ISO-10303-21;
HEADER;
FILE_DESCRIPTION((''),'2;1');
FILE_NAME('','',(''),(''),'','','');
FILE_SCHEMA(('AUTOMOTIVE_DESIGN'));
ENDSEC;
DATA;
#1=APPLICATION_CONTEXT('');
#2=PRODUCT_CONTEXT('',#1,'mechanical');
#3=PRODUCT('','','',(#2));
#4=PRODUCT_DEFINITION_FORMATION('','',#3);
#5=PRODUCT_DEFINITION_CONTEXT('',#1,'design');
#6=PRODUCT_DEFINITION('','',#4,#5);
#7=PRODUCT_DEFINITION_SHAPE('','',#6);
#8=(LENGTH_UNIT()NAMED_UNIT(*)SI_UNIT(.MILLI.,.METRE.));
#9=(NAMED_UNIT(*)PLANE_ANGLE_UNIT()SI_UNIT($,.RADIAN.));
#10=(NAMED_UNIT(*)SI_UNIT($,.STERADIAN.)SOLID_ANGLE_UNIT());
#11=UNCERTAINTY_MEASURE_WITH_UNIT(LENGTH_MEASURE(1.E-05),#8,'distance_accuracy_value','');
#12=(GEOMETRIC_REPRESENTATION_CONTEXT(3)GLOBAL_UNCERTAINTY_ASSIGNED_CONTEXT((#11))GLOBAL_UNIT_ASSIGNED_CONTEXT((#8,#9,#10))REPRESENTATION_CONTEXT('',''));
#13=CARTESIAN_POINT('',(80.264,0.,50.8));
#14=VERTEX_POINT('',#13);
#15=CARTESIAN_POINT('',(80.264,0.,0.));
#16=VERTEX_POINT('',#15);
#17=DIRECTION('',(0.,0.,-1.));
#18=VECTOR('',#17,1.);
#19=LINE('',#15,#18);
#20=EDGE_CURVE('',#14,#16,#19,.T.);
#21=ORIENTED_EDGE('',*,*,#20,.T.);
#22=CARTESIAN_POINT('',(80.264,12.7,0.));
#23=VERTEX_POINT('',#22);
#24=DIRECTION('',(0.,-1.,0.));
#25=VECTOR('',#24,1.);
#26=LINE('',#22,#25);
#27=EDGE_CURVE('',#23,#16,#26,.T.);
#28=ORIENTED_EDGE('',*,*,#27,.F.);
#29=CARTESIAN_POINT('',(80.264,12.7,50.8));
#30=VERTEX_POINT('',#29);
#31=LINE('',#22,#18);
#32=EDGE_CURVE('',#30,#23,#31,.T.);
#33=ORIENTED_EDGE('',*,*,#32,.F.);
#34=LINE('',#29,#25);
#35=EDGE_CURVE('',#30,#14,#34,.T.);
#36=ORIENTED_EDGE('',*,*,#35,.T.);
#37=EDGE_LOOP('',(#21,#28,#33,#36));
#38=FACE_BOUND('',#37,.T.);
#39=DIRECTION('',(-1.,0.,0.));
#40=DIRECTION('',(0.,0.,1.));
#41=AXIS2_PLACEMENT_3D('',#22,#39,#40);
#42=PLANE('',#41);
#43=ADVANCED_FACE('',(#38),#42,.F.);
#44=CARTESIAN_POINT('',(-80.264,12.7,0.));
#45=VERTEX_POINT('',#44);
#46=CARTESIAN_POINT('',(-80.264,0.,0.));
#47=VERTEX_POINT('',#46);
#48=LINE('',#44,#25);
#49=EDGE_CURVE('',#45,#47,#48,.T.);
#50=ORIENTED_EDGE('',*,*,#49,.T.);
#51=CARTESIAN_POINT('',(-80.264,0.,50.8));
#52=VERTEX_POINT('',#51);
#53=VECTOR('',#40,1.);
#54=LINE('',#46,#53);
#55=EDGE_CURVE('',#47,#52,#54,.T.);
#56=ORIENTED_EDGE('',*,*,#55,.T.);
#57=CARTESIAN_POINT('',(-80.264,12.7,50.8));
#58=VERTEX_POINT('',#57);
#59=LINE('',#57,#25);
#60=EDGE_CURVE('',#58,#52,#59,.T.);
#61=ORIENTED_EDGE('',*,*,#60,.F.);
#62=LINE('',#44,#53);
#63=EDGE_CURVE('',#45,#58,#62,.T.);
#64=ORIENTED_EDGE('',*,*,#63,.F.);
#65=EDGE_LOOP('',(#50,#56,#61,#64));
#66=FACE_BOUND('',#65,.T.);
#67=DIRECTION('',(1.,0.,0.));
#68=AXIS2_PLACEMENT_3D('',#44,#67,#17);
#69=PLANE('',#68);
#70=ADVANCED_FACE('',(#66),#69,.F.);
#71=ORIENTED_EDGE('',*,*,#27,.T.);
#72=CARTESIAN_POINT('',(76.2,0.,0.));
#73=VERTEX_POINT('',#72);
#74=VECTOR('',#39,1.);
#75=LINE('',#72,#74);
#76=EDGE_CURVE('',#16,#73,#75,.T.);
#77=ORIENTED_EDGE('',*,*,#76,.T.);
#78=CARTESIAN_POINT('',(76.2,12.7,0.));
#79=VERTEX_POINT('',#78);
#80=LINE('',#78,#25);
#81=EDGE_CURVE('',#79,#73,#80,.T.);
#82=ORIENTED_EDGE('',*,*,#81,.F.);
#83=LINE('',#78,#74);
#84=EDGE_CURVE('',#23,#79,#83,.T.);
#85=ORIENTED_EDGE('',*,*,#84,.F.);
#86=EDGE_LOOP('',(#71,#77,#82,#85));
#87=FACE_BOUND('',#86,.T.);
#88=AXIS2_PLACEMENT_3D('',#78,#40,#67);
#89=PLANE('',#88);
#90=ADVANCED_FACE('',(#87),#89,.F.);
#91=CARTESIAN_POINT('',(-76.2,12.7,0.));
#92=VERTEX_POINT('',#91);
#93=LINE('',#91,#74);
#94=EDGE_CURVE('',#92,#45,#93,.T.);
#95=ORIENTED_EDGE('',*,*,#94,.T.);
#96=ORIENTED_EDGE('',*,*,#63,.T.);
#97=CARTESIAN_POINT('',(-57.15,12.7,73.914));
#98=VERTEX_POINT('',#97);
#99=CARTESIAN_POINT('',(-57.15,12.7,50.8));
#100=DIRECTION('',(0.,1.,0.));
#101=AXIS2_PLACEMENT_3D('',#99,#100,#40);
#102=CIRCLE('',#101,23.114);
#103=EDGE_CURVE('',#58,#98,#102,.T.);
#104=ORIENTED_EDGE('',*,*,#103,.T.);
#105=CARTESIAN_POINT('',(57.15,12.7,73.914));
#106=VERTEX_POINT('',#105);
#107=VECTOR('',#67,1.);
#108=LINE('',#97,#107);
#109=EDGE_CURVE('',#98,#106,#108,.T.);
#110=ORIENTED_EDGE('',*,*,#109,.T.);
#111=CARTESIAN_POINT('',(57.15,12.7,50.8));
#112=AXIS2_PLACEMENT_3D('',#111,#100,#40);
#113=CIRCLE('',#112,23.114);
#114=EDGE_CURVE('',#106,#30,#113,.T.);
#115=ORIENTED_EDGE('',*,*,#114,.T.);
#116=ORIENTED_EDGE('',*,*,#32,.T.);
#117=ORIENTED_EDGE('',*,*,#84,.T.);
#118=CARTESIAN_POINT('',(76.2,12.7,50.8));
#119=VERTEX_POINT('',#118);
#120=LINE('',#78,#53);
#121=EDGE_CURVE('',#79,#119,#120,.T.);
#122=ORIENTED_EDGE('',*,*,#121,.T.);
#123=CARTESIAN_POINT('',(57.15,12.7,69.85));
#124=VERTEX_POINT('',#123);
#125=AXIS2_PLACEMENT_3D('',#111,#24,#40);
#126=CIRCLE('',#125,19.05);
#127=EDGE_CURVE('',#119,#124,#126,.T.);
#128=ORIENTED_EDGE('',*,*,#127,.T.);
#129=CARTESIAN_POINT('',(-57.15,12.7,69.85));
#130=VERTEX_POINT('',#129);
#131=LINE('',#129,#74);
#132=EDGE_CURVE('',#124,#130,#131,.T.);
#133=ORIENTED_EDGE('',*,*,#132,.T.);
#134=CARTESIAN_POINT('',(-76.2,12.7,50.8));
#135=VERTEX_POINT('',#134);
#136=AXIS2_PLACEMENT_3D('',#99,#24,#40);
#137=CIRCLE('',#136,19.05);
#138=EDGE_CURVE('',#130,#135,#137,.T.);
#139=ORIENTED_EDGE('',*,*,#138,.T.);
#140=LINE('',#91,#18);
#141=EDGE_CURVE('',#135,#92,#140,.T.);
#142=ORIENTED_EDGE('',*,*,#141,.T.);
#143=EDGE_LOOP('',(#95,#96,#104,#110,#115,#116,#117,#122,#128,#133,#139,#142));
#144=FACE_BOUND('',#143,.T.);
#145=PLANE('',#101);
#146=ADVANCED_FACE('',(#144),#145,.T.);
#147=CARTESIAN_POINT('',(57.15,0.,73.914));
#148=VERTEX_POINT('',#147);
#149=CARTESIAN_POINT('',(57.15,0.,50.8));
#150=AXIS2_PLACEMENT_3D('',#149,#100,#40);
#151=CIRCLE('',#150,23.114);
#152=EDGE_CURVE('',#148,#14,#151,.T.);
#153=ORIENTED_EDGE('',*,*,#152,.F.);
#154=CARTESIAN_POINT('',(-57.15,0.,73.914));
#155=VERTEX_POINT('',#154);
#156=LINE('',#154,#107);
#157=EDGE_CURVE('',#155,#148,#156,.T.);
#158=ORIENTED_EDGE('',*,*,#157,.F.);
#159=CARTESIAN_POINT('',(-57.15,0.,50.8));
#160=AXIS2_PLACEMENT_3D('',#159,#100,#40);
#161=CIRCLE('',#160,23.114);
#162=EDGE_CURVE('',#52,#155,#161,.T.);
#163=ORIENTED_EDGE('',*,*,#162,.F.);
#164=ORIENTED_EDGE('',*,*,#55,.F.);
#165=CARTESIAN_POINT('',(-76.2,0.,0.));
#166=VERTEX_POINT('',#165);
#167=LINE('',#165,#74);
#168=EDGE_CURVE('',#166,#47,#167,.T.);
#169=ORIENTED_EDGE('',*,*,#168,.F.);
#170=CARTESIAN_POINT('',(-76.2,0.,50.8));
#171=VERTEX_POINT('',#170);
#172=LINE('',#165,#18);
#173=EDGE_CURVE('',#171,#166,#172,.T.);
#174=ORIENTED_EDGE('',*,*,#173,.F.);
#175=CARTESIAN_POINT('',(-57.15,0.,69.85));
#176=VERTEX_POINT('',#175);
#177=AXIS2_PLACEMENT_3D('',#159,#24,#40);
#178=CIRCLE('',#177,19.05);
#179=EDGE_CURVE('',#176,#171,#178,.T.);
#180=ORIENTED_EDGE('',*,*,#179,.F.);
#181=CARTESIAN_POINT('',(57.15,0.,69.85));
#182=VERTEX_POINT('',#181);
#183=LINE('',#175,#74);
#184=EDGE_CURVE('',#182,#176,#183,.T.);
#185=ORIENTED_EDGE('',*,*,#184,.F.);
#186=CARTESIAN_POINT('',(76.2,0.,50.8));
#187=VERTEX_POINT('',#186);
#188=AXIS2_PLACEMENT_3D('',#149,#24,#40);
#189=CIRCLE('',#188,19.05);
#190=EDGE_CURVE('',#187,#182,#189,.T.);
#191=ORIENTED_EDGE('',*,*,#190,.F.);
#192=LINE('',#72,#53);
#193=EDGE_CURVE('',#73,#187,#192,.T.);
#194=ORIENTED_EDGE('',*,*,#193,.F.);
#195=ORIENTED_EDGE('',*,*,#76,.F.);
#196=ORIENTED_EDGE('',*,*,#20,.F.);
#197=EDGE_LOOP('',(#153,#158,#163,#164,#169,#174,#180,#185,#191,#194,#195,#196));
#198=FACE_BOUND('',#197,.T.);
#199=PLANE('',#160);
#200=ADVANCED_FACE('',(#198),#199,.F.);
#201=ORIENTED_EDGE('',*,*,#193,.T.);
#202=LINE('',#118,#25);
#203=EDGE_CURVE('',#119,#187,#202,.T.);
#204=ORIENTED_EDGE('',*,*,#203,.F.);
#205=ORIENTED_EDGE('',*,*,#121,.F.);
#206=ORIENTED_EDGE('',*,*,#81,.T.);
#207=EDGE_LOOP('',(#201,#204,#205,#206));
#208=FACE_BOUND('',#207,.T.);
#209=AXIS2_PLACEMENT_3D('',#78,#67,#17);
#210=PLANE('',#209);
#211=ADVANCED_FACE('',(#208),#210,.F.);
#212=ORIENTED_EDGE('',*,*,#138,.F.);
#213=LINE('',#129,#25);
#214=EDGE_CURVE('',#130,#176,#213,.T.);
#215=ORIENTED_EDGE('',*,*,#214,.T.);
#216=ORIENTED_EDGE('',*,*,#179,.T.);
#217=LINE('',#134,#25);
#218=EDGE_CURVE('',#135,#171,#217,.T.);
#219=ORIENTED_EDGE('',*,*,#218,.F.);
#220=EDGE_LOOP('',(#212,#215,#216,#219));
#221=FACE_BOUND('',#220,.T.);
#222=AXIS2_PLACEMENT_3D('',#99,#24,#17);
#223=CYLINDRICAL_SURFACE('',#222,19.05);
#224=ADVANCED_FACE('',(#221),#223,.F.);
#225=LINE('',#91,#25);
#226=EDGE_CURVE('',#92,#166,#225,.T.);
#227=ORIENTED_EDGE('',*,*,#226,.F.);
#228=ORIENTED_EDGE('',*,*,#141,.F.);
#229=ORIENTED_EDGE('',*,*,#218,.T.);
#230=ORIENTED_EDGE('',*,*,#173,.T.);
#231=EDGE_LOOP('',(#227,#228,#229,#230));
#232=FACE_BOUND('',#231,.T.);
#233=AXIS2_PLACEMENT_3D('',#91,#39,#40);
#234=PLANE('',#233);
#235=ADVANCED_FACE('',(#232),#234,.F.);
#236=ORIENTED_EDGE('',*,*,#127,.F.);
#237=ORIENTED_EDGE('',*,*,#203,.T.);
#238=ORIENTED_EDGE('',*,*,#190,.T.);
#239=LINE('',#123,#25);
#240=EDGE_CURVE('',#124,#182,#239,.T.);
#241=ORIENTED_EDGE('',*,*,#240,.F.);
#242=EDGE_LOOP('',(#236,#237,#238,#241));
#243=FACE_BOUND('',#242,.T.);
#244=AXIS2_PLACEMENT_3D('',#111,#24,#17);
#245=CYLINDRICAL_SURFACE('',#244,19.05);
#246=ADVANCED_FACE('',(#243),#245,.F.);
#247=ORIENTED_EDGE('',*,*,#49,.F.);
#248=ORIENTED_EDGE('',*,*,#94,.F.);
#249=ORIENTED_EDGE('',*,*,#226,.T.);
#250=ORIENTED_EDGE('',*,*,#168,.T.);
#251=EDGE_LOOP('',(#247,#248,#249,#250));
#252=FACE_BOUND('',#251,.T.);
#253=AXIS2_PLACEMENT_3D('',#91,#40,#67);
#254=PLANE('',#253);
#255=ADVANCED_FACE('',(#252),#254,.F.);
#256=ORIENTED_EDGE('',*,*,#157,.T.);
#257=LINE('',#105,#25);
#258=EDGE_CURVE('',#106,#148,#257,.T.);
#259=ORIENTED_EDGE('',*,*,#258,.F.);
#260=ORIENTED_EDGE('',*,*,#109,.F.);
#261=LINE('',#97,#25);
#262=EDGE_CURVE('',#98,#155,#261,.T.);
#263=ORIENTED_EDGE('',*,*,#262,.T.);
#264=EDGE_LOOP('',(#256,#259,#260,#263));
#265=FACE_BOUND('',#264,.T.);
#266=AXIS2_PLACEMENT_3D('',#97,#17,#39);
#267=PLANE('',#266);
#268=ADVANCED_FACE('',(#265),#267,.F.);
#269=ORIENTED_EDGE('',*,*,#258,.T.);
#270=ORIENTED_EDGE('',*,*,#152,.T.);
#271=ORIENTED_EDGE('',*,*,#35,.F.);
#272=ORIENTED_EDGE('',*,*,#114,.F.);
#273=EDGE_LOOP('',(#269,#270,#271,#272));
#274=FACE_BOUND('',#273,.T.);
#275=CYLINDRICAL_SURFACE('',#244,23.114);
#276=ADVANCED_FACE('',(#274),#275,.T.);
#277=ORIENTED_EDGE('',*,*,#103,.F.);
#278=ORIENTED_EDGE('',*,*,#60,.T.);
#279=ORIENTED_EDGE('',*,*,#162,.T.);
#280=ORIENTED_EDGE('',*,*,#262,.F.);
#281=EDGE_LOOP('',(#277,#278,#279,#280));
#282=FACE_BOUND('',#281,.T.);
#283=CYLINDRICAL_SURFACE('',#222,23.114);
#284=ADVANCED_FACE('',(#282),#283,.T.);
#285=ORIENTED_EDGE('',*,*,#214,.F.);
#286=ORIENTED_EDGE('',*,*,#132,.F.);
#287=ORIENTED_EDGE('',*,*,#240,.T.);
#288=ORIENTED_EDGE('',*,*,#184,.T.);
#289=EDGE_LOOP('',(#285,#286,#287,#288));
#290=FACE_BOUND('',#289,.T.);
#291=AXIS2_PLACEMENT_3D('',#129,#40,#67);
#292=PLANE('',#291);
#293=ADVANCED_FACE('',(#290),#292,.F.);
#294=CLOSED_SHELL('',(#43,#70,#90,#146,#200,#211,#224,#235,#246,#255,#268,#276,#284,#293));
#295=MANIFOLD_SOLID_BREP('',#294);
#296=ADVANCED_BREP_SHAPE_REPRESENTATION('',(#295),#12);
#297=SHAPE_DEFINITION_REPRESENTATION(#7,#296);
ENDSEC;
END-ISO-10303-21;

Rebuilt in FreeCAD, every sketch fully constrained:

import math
import FreeCAD as App
import Part
import Sketcher

V = App.Vector
Q = App.Units.Quantity

doc = App.newDocument("Part")
body = doc.addObject("PartDesign::Body", "Body")

# Sketch on XZ plane
sketch1 = body.newObject("Sketcher::SketchObject", "Sketch")
sketch1.AttachmentSupport = (doc.getObject("XZ_Plane"), [""])
sketch1.MapMode = "FlatFace"
sketch1.addGeometry(Part.LineSegment(V(-76.2, 50.8, 0), V(-76.2, 0, 0)), False)
sketch1.addGeometry(Part.LineSegment(V(-76.2, 0, 0), V(-80.264, 0, 0)), False)
sketch1.addGeometry(Part.LineSegment(V(-80.264, 0, 0), V(-80.264, 50.8, 0)), False)
sketch1.addGeometry(Part.ArcOfCircle(Part.Circle(V(-57.15, 50.8, 0), V(0, 0, 1), 23.114), math.radians(90), math.radians(180)), False)
sketch1.addGeometry(Part.LineSegment(V(-57.15, 73.914, 0), V(57.15, 73.914, 0)), False)
sketch1.addGeometry(Part.ArcOfCircle(Part.Circle(V(57.15, 50.8, 0), V(0, 0, 1), 23.114), math.radians(0), math.radians(90)), False)
sketch1.addGeometry(Part.LineSegment(V(80.264, 50.8, 0), V(80.264, 0, 0)), False)
sketch1.addGeometry(Part.LineSegment(V(80.264, 0, 0), V(76.2, 0, 0)), False)
sketch1.addGeometry(Part.LineSegment(V(76.2, 0, 0), V(76.2, 50.8, 0)), False)
sketch1.addGeometry(Part.ArcOfCircle(Part.Circle(V(57.15, 50.8, 0), V(0, 0, 1), 19.05), math.radians(0), math.radians(90)), False)
sketch1.addGeometry(Part.LineSegment(V(57.15, 69.85, 0), V(-57.15, 69.85, 0)), False)
sketch1.addGeometry(Part.ArcOfCircle(Part.Circle(V(-57.15, 50.8, 0), V(0, 0, 1), 19.05), math.radians(90), math.radians(180)), False)
sketch1.addConstraint(Sketcher.Constraint("Coincident", 0, 2, 1, 1))
sketch1.addConstraint(Sketcher.Constraint("Coincident", 1, 2, 2, 1))
sketch1.addConstraint(Sketcher.Constraint("Tangent", 2, 2, 3, 2))
sketch1.addConstraint(Sketcher.Constraint("Tangent", 3, 1, 4, 1))
sketch1.addConstraint(Sketcher.Constraint("Tangent", 4, 2, 5, 2))
sketch1.addConstraint(Sketcher.Constraint("Tangent", 5, 1, 6, 1))
sketch1.addConstraint(Sketcher.Constraint("Coincident", 6, 2, 7, 1))
sketch1.addConstraint(Sketcher.Constraint("Coincident", 7, 2, 8, 1))
sketch1.addConstraint(Sketcher.Constraint("Tangent", 8, 2, 9, 1))
sketch1.addConstraint(Sketcher.Constraint("Tangent", 9, 2, 10, 1))
sketch1.addConstraint(Sketcher.Constraint("Tangent", 10, 2, 11, 1))
sketch1.addConstraint(Sketcher.Constraint("Tangent", 11, 2, 0, 1))
sketch1.addConstraint(Sketcher.Constraint("Vertical", 0))
sketch1.addConstraint(Sketcher.Constraint("Horizontal", 1))
sketch1.addConstraint(Sketcher.Constraint("Vertical", 2))
sketch1.addConstraint(Sketcher.Constraint("Horizontal", 4))
sketch1.addConstraint(Sketcher.Constraint("Vertical", 6))
sketch1.addConstraint(Sketcher.Constraint("Horizontal", 7))
sketch1.addConstraint(Sketcher.Constraint("Vertical", 8))
sketch1.addConstraint(Sketcher.Constraint("Horizontal", 10))
sketch1.addConstraint(Sketcher.Constraint("Coincident", 9, 3, 5, 3))
sketch1.addConstraint(Sketcher.Constraint("Coincident", 11, 3, 3, 3))
sketch1.addConstraint(Sketcher.Constraint("Equal", 3, 5))
sketch1.addConstraint(Sketcher.Constraint("Symmetric", 1, 2, 6, 2, -1, 1))
sketch1.addConstraint(Sketcher.Constraint("PointOnObject", 0, 2, -1))
sketch1.addConstraint(Sketcher.Constraint("DistanceY", 0, 2, 0, 1, Q("2 in")))
sketch1.addConstraint(Sketcher.Constraint("Radius", 3, Q("0.91 in")))
sketch1.addConstraint(Sketcher.Constraint("Radius", 9, Q("0.75 in")))
sketch1.addConstraint(Sketcher.Constraint("DistanceX", 4, 1, 4, 2, Q("4.5 in")))
pad1 = body.newObject("PartDesign::Pad", "Pad")
pad1.Profile = sketch1
pad1.Length = Q("0.5 in")
pad1.Reversed = True

doc.recompute()
